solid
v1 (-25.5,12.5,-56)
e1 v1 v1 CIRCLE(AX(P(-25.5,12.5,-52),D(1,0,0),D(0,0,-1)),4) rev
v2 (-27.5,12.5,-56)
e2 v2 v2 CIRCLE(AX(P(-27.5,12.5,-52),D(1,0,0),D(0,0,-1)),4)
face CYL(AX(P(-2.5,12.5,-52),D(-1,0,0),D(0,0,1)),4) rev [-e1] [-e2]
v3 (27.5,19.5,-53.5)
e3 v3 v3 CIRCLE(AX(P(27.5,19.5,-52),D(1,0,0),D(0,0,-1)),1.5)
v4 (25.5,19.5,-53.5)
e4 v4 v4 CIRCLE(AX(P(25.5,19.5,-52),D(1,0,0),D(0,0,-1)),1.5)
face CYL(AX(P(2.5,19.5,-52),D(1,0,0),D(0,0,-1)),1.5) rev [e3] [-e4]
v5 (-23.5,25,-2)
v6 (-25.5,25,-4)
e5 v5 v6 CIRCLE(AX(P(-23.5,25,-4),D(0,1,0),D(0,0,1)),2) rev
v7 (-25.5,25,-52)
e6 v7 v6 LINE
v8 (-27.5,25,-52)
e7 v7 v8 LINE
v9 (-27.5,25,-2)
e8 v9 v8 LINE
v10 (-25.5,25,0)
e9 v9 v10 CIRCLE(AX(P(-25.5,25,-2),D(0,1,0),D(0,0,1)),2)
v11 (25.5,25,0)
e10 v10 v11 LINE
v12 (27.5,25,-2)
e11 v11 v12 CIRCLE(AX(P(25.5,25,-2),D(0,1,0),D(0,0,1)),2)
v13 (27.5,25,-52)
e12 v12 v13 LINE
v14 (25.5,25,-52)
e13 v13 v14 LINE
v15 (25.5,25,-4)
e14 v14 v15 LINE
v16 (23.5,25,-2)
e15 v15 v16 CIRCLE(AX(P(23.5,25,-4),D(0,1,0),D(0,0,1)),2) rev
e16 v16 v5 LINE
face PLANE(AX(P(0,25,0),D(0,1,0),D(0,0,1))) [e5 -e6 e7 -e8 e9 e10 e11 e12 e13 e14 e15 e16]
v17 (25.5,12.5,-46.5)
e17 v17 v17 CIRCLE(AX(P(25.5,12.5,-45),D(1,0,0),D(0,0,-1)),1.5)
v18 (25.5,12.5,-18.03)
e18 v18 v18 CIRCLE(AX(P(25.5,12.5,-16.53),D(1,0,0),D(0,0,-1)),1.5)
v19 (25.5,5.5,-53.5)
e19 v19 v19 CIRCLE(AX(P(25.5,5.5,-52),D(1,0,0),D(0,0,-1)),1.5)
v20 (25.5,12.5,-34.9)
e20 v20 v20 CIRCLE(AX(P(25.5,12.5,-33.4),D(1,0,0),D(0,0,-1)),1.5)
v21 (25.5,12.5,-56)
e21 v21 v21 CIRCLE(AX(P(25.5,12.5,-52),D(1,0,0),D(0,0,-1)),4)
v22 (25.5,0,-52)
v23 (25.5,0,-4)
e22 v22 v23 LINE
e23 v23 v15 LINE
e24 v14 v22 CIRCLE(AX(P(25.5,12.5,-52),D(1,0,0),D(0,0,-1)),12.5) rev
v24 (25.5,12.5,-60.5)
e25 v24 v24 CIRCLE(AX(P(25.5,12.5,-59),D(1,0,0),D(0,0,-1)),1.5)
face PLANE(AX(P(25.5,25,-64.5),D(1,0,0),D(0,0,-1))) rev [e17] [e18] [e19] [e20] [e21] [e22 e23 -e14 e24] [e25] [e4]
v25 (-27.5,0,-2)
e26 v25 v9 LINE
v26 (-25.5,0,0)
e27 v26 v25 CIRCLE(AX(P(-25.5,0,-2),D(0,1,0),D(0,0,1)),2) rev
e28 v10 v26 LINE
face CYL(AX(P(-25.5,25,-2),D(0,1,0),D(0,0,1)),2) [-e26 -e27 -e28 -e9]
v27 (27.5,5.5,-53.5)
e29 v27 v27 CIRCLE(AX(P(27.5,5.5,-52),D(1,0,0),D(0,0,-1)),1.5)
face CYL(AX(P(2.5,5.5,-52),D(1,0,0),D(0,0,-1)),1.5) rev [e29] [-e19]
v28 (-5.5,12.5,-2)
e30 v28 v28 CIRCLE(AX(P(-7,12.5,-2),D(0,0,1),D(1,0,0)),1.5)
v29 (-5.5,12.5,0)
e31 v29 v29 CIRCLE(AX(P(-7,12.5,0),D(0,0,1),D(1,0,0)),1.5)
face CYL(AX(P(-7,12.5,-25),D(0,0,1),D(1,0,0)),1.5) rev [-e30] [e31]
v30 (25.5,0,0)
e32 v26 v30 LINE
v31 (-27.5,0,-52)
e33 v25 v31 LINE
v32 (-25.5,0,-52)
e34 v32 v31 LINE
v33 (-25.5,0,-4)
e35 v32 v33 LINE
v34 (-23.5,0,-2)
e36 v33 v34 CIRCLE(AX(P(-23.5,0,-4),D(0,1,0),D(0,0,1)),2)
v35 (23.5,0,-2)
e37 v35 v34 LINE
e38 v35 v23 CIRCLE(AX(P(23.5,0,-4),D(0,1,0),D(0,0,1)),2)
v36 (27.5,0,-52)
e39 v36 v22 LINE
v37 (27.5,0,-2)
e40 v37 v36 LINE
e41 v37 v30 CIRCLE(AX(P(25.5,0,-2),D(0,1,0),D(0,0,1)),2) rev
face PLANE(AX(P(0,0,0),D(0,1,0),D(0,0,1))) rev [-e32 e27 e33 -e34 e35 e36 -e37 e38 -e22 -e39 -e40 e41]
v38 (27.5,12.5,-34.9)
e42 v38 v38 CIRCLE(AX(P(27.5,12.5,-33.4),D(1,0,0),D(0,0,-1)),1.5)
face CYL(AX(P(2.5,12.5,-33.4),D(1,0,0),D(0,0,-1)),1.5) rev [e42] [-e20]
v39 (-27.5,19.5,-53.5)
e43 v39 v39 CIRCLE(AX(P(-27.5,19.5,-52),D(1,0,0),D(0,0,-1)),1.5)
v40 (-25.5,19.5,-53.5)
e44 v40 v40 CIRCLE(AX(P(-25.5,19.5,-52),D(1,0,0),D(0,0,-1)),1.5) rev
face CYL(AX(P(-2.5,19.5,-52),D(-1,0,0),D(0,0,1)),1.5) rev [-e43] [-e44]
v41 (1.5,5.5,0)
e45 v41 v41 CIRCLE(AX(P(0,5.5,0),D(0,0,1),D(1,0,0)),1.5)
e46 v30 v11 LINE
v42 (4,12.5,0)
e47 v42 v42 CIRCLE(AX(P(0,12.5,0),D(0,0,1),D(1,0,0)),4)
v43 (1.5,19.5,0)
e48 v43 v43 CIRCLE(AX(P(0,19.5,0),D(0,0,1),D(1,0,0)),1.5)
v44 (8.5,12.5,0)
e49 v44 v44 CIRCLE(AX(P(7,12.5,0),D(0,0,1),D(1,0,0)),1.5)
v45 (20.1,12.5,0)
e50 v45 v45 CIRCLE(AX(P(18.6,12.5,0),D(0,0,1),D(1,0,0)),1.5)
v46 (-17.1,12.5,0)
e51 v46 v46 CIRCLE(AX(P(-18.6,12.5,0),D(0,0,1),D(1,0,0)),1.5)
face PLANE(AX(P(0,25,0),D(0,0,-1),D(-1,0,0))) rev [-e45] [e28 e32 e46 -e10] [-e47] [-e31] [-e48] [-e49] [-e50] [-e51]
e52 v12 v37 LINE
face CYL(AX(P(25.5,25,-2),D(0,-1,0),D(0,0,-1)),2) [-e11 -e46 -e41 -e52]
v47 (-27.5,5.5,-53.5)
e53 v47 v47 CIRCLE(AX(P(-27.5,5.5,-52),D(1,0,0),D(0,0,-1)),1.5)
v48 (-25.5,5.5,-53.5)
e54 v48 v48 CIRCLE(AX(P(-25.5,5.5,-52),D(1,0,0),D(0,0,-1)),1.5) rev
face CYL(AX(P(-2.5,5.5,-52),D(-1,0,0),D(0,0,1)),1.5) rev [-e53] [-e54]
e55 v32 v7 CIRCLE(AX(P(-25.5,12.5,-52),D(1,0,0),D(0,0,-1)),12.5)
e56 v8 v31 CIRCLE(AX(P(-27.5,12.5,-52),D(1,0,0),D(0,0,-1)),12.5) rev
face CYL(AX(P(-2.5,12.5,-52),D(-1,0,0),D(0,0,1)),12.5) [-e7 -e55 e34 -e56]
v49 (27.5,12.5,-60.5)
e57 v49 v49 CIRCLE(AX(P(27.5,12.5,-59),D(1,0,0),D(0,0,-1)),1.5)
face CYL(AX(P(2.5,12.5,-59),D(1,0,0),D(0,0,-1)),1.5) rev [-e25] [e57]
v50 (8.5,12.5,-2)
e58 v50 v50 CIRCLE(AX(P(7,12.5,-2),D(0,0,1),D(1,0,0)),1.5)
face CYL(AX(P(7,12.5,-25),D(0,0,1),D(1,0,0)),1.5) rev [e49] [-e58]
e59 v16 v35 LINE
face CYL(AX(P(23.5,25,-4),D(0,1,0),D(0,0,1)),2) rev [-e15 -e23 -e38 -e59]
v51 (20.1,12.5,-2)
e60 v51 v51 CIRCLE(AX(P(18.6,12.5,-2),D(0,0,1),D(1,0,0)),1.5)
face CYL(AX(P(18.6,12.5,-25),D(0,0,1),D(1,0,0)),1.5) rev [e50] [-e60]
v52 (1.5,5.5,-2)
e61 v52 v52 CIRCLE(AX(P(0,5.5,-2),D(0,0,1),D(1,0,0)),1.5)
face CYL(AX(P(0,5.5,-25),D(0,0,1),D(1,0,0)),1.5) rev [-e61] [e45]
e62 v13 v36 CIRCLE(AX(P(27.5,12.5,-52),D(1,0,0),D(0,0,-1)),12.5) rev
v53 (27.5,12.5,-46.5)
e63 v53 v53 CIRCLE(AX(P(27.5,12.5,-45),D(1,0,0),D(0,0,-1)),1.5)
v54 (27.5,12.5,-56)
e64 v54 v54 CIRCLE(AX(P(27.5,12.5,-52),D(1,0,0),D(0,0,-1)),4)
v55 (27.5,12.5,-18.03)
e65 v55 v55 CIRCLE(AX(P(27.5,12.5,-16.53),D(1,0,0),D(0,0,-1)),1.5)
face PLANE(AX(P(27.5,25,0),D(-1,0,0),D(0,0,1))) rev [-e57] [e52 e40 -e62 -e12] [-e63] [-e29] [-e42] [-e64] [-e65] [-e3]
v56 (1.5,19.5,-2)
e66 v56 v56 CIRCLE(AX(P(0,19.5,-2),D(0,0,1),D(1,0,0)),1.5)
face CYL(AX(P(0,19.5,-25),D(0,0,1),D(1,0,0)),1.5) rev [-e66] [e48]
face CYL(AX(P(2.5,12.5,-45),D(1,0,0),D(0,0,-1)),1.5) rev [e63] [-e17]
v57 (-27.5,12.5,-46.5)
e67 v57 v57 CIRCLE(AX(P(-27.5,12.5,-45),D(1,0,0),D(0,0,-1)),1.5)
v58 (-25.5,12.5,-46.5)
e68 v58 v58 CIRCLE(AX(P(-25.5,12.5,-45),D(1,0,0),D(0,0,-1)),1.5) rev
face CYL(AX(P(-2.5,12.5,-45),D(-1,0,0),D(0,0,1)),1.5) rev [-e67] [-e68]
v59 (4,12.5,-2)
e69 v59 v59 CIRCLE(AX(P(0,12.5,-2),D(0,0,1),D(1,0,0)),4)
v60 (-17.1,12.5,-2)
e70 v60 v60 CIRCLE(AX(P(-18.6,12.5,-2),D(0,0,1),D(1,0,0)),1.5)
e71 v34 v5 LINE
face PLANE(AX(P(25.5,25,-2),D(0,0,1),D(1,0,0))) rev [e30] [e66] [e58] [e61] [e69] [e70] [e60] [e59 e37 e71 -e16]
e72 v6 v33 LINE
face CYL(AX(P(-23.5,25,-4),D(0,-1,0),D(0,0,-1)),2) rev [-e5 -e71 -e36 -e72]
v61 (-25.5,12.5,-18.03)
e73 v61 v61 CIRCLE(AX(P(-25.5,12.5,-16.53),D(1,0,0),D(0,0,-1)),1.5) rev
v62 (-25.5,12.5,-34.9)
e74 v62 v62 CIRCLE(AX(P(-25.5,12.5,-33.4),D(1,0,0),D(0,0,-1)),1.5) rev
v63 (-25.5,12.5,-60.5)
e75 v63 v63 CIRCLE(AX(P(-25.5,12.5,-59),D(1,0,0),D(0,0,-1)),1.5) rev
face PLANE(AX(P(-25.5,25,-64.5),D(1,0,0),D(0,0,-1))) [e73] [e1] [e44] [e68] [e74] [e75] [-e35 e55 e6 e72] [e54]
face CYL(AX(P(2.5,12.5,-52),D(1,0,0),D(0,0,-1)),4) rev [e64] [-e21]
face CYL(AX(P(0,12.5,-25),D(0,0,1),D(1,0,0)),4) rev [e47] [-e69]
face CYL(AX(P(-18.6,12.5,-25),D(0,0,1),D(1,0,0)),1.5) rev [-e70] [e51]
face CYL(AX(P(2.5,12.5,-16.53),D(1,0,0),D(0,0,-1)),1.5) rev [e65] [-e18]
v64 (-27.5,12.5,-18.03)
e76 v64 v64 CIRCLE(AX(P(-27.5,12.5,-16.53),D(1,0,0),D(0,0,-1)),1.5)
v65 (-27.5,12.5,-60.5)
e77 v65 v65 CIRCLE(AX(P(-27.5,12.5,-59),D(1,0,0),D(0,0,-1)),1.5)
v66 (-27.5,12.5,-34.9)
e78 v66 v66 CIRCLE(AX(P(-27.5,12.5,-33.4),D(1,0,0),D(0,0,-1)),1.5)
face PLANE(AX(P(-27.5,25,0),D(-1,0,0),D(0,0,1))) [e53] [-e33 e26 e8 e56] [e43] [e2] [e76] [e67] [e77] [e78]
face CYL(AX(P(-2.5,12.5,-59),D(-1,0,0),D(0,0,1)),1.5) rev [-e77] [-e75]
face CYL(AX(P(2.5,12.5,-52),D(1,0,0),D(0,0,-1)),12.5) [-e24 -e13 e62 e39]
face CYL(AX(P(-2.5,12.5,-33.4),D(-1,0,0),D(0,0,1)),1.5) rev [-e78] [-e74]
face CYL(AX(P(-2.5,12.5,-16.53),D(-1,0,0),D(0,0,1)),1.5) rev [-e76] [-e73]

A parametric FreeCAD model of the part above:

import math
import FreeCAD as App
import Part
import Sketcher
from FreeCAD import Vector
Q = App.Units.Quantity


def edges_at(feature, points):
    """Names of the edges that pass closest to the given points."""
    edges = feature.Shape.Edges
    near = lambda p: min(range(len(edges)), key=lambda i: edges[i].distToShape(Part.Vertex(*p))[0])
    return sorted({f"Edge{near(p) + 1}" for p in points})


def add_polygon(sketch, points):
    """Adds a closed chain of lines whose ends are joined by coincident constraints."""
    first, n = sketch.GeometryCount, len(points)
    for a, b in zip(points, points[1:] + points[:1]):
        sketch.addGeometry(Part.LineSegment(App.Vector(*a, 0), App.Vector(*b, 0)), False)
    for i in range(n):
        sketch.addConstraint(Sketcher.Constraint("Coincident", first + i, 2, first + (i + 1) % n, 1))

doc = App.newDocument("Part")
body = doc.addObject("PartDesign::Body", "Body")

sketch1 = doc.addObject("Sketcher::SketchObject", "Sketch")
body.addObject(sketch1)
sketch1.AttachmentSupport = (doc.XZ_Plane, [""])
sketch1.MapMode = "FlatFace"
add_polygon(sketch1, [(0, 0), (27.5, 0), (27.5, -64.5), (25.5, -64.5), (25.5, -2), (0, -2)])
sketch1.addConstraint(Sketcher.Constraint("Horizontal", 0))
sketch1.addConstraint(Sketcher.Constraint("Vertical", 1))
sketch1.addConstraint(Sketcher.Constraint("Horizontal", 2))
sketch1.addConstraint(Sketcher.Constraint("Vertical", 3))
sketch1.addConstraint(Sketcher.Constraint("Horizontal", 4))
sketch1.addConstraint(Sketcher.Constraint("Vertical", 5))
sketch1.addConstraint(Sketcher.Constraint("Coincident", 5, 2, -1, 1))
sketch1.addConstraint(Sketcher.Constraint("Equal", 2, 5))
sketch1.addConstraint(Sketcher.Constraint("DistanceX", 2, 2, 2, 1, Q("2 mm")))
sketch1.addConstraint(Sketcher.Constraint("DistanceX", 0, 1, 0, 2, Q("27.5 mm")))
sketch1.addConstraint(Sketcher.Constraint("DistanceY", 1, 2, 1, 1, Q("64.5 mm")))
pad1 = doc.addObject("PartDesign::Pad", "Pad")
body.addObject(pad1)
pad1.Profile = sketch1
pad1.Length = 25
pad1.Reversed = True

sketch2 = doc.addObject("Sketcher::SketchObject", "Sketch001")
body.addObject(sketch2)
sketch2.AttachmentSupport = (doc.YZ_Plane, [""])
sketch2.MapMode = "FlatFace"
sketch2.AttachmentOffset = App.Placement(Vector(0, 0, 27.5), App.Rotation())
sketch2.addGeometry(Part.Circle(Vector(12.5, -16.5, 0), Vector(0, 0, 1), 1.5), False)
sketch2.addGeometry(Part.Circle(Vector(12.5, -45, 0), Vector(0, 0, 1), 1.5), False)
sketch2.addGeometry(Part.Circle(Vector(12.5, -52, 0), Vector(0, 0, 1), 4), False)
sketch2.addGeometry(Part.Circle(Vector(19.5, -52, 0), Vector(0, 0, 1), 1.5), False)
sketch2.addGeometry(Part.Circle(Vector(12.5, -59, 0), Vector(0, 0, 1), 1.5), False)
sketch2.addGeometry(Part.Circle(Vector(5.5, -52, 0), Vector(0, 0, 1), 1.5), False)
sketch2.addGeometry(Part.LineSegment(Vector(25, -64.5, 0), Vector(25, -52, 0)), False)
sketch2.addGeometry(Part.ArcOfCircle(Part.Circle(Vector(12.5, -52, 0), Vector(0, 0, 1), 12.5), math.radians(-90), math.radians(0)), False)
sketch2.addGeometry(Part.LineSegment(Vector(12.5, -64.5, 0), Vector(25, -64.5, 0)), False)
sketch2.addGeometry(Part.LineSegment(Vector(0, -64.5, 0), Vector(12.5, -64.5, 0)), False)
sketch2.addGeometry(Part.ArcOfCircle(Part.Circle(Vector(12.5, -52, 0), Vector(0, 0, 1), 12.5), math.radians(180), math.radians(270)), False)
sketch2.addGeometry(Part.LineSegment(Vector(0, -52, 0), Vector(0, -64.5, 0)), False)
sketch2.addGeometry(Part.Circle(Vector(12.5, -33.4, 0), Vector(0, 0, 1), 1.5), False)
sketch2.addConstraint(Sketcher.Constraint("Tangent", 6, 2, 7, 2))
sketch2.addConstraint(Sketcher.Constraint("Tangent", 7, 1, 8, 1))
sketch2.addConstraint(Sketcher.Constraint("Coincident", 8, 2, 6, 1))
sketch2.addConstraint(Sketcher.Constraint("Tangent", 9, 2, 10, 2))
sketch2.addConstraint(Sketcher.Constraint("Tangent", 10, 1, 11, 1))
sketch2.addConstraint(Sketcher.Constraint("Coincident", 11, 2, 9, 1))
sketch2.addConstraint(Sketcher.Constraint("Vertical", 6))
sketch2.addConstraint(Sketcher.Constraint("Horizontal", 8))
sketch2.addConstraint(Sketcher.Constraint("Horizontal", 9))
sketch2.addConstraint(Sketcher.Constraint("Vertical", 11))
sketch2.addConstraint(Sketcher.Constraint("Coincident", 7, 3, 2, 3))
sketch2.addConstraint(Sketcher.Constraint("Coincident", 10, 3, 2, 3))
sketch2.addConstraint(Sketcher.Constraint("Equal", 0, 1))
sketch2.addConstraint(Sketcher.Constraint("Equal", 1, 3))
sketch2.addConstraint(Sketcher.Constraint("Equal", 3, 4))
sketch2.addConstraint(Sketcher.Constraint("Equal", 4, 5))
sketch2.addConstraint(Sketcher.Constraint("Equal", 7, 10))
sketch2.addConstraint(Sketcher.Constraint("Equal", 5, 12))
sketch2.addConstraint(Sketcher.Constraint("PointOnObject", 10, 1, -2))
sketch2.addConstraint(Sketcher.Constraint("Horizontal", 2, 3, 3, 3))
sketch2.addConstraint(Sketcher.Constraint("Horizontal", 3, 3, 5, 3))
sketch2.addConstraint(Sketcher.Constraint("Vertical", 0, 3, 1, 3))
sketch2.addConstraint(Sketcher.Constraint("Vertical", 1, 3, 2, 3))
sketch2.addConstraint(Sketcher.Constraint("Vertical", 2, 3, 4, 3))
sketch2.addConstraint(Sketcher.Constraint("Vertical", 10, 3, 12, 3))
sketch2.addConstraint(Sketcher.Constraint("Diameter", 0, Q("3 mm")))
sketch2.addConstraint(Sketcher.Constraint("Diameter", 2, Q("8 mm")))
sketch2.addConstraint(Sketcher.Constraint("Radius", 7, Q("12.5 mm")))
sketch2.addConstraint(Sketcher.Constraint("DistanceY", 1, 3, -1, 1, Q("45 mm")))
sketch2.addConstraint(Sketcher.Constraint("DistanceY", 2, 3, -1, 1, Q("52 mm")))
sketch2.addConstraint(Sketcher.Constraint("DistanceY", 4, 3, -1, 1, Q("59 mm")))
sketch2.addConstraint(Sketcher.Constraint("DistanceX", 2, 3, 3, 3, Q("7 mm")))
sketch2.addConstraint(Sketcher.Constraint("DistanceX", 5, 3, 2, 3, Q("7 mm")))
sketch2.addConstraint(Sketcher.Constraint("DistanceY", 12, 3, -1, 1, Q("33.4 mm")))
sketch2.addConstraint(Sketcher.Constraint("DistanceY", 0, 3, -1, 1, Q("16.53 mm")))
pocket1 = doc.addObject("PartDesign::Pocket", "Pocket")
body.addObject(pocket1)
pocket1.Profile = sketch2
pocket1.Length = 25
doc.recompute()

mirrored = doc.addObject("PartDesign::Mirrored", "Mirrored")
body.addObject(mirrored)
mirrored.Originals = [pad1, pocket1]
mirrored.MirrorPlane = (doc.YZ_Plane, [""])
body.Tip = mirrored

sketch3 = doc.addObject("Sketcher::SketchObject", "Sketch002")
body.addObject(sketch3)
sketch3.AttachmentSupport = (doc.XY_Plane, [""])
sketch3.MapMode = "FlatFace"
sketch3.addGeometry(Part.Circle(Vector(7, 12.5, 0), Vector(0, 0, 1), 1.5), False)
sketch3.addGeometry(Part.Circle(Vector(0, 19.5, 0), Vector(0, 0, 1), 1.5), False)
sketch3.addGeometry(Part.Circle(Vector(-7, 12.5, 0), Vector(0, 0, 1), 1.5), False)
sketch3.addGeometry(Part.Circle(Vector(0, 5.5, 0), Vector(0, 0, 1), 1.5), False)
sketch3.addGeometry(Part.Circle(Vector(18.6, 12.5, 0), Vector(0, 0, 1), 1.5), False)
sketch3.addGeometry(Part.Circle(Vector(-18.6, 12.5, 0), Vector(0, 0, 1), 1.5), False)
sketch3.addGeometry(Part.Circle(Vector(0, 12.5, 0), Vector(0, 0, 1), 4), False)
sketch3.addConstraint(Sketcher.Constraint("Equal", 0, 1))
sketch3.addConstraint(Sketcher.Constraint("Equal", 1, 2))
sketch3.addConstraint(Sketcher.Constraint("Equal", 2, 3))
sketch3.addConstraint(Sketcher.Constraint("Equal", 3, 4))
sketch3.addConstraint(Sketcher.Constraint("Equal", 4, 5))
sketch3.addConstraint(Sketcher.Constraint("Symmetric", 0, 3, 2, 3, -2))
sketch3.addConstraint(Sketcher.Constraint("Symmetric", 4, 3, 5, 3, -2))
sketch3.addConstraint(Sketcher.Constraint("PointOnObject", 1, 3, -2))
sketch3.addConstraint(Sketcher.Constraint("PointOnObject", 3, 3, -2))
sketch3.addConstraint(Sketcher.Constraint("PointOnObject", 6, 3, -2))
sketch3.addConstraint(Sketcher.Constraint("Horizontal", 2, 3, 4, 3))
sketch3.addConstraint(Sketcher.Constraint("Horizontal", 5, 3, 6, 3))
sketch3.addConstraint(Sketcher.Constraint("Diameter", 0, Q("3 mm")))
sketch3.addConstraint(Sketcher.Constraint("Diameter", 6, Q("8 mm")))
sketch3.addConstraint(Sketcher.Constraint("DistanceX", -1, 1, 0, 3, Q("7 mm")))
sketch3.addConstraint(Sketcher.Constraint("DistanceY", 0, 3, 1, 3, Q("7 mm")))
sketch3.addConstraint(Sketcher.Constraint("DistanceY", 3, 3, 0, 3, Q("7 mm")))
sketch3.addConstraint(Sketcher.Constraint("DistanceY", -1, 1, 0, 3, Q("12.5 mm")))
sketch3.addConstraint(Sketcher.Constraint("DistanceX", -1, 1, 4, 3, Q("18.6 mm")))
pocket2 = doc.addObject("PartDesign::Pocket", "Pocket001")
body.addObject(pocket2)
pocket2.Profile = sketch3
pocket2.Length = 25
doc.recompute()

fillet = doc.addObject("PartDesign::Fillet", "Fillet")
body.addObject(fillet)
fillet.Base = (pocket2, edges_at(pocket2, [
    (25.5, 12.5, -2),
    (27.5, 12.5, 0),
    (-25.5, 12.5, -2),
    (-27.5, 12.5, 0),
]))
fillet.Radius = 2

doc.recompute()
